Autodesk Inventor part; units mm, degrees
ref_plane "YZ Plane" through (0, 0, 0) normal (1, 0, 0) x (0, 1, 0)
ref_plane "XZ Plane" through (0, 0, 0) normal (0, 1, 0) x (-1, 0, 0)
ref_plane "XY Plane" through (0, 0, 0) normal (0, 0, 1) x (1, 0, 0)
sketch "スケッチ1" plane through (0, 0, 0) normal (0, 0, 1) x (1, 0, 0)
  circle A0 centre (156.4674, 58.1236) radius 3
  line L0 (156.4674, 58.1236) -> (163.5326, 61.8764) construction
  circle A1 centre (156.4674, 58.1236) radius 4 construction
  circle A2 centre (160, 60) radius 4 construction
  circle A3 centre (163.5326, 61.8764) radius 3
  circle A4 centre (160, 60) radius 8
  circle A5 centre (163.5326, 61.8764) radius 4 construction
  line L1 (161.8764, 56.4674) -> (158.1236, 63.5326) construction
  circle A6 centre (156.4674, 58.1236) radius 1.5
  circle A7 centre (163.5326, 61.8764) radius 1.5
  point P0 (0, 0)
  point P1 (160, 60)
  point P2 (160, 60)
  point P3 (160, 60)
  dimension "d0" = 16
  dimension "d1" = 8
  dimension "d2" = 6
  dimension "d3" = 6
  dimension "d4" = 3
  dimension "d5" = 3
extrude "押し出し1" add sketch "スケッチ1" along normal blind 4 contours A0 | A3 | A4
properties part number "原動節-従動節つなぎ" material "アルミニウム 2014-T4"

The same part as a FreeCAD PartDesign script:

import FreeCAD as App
import Part
import Sketcher

V = App.Vector

doc = App.newDocument("Part")
params = doc.addObject("Spreadsheet::Sheet", "Params")
for row, (alias, value) in enumerate([
    ("sketch1_diameter", "16 mm"),
    ("sketch1_diameter2", "3 mm"),
    ("pad1_length", "4 mm"),
], start=1):
    params.set(f"A{row}", alias)
    params.set(f"B{row}", "=" + value)
    params.setAlias(f"B{row}", alias)

body = doc.addObject("PartDesign::Body", "Body")

# Sketch on XY plane
sketch1 = body.newObject("Sketcher::SketchObject", "Sketch")
sketch1.AttachmentSupport = (doc.getObject("XY_Plane"), [""])
sketch1.MapMode = "FlatFace"
sketch1.addGeometry([
    Part.Circle(V(160, 60, 0), V(0, 0, 1), 8),
    Part.Circle(V(156.5, 58.1, 0), V(0, 0, 1), 1.5),
    Part.Circle(V(163.5, 61.9, 0), V(0, 0, 1), 1.5),
], False)
sketch1.addConstraint([
    Sketcher.Constraint("Equal", 1, 2),
    Sketcher.Constraint("Diameter", 0, 16.0),
    Sketcher.Constraint("Diameter", 1, 3.0),
    Sketcher.Constraint("DistanceX", -1, 1, 0, 3, 160.0),
    Sketcher.Constraint("DistanceY", -1, 1, 0, 3, 60.0),
    Sketcher.Constraint("DistanceX", -1, 1, 1, 3, 156.4674),
    Sketcher.Constraint("DistanceY", -1, 1, 1, 3, 58.1236),
    Sketcher.Constraint("DistanceX", -1, 1, 2, 3, 163.5326),
    Sketcher.Constraint("DistanceY", -1, 1, 2, 3, 61.8764),
])
sketch1.setExpression("Constraints[1]", "Params.sketch1_diameter")
sketch1.setExpression("Constraints[2]", "Params.sketch1_diameter2")
pad1 = body.newObject("PartDesign::Pad", "Pad")
pad1.Profile = sketch1
pad1.setExpression("Length", "Params.pad1_length")

doc.recompute()
